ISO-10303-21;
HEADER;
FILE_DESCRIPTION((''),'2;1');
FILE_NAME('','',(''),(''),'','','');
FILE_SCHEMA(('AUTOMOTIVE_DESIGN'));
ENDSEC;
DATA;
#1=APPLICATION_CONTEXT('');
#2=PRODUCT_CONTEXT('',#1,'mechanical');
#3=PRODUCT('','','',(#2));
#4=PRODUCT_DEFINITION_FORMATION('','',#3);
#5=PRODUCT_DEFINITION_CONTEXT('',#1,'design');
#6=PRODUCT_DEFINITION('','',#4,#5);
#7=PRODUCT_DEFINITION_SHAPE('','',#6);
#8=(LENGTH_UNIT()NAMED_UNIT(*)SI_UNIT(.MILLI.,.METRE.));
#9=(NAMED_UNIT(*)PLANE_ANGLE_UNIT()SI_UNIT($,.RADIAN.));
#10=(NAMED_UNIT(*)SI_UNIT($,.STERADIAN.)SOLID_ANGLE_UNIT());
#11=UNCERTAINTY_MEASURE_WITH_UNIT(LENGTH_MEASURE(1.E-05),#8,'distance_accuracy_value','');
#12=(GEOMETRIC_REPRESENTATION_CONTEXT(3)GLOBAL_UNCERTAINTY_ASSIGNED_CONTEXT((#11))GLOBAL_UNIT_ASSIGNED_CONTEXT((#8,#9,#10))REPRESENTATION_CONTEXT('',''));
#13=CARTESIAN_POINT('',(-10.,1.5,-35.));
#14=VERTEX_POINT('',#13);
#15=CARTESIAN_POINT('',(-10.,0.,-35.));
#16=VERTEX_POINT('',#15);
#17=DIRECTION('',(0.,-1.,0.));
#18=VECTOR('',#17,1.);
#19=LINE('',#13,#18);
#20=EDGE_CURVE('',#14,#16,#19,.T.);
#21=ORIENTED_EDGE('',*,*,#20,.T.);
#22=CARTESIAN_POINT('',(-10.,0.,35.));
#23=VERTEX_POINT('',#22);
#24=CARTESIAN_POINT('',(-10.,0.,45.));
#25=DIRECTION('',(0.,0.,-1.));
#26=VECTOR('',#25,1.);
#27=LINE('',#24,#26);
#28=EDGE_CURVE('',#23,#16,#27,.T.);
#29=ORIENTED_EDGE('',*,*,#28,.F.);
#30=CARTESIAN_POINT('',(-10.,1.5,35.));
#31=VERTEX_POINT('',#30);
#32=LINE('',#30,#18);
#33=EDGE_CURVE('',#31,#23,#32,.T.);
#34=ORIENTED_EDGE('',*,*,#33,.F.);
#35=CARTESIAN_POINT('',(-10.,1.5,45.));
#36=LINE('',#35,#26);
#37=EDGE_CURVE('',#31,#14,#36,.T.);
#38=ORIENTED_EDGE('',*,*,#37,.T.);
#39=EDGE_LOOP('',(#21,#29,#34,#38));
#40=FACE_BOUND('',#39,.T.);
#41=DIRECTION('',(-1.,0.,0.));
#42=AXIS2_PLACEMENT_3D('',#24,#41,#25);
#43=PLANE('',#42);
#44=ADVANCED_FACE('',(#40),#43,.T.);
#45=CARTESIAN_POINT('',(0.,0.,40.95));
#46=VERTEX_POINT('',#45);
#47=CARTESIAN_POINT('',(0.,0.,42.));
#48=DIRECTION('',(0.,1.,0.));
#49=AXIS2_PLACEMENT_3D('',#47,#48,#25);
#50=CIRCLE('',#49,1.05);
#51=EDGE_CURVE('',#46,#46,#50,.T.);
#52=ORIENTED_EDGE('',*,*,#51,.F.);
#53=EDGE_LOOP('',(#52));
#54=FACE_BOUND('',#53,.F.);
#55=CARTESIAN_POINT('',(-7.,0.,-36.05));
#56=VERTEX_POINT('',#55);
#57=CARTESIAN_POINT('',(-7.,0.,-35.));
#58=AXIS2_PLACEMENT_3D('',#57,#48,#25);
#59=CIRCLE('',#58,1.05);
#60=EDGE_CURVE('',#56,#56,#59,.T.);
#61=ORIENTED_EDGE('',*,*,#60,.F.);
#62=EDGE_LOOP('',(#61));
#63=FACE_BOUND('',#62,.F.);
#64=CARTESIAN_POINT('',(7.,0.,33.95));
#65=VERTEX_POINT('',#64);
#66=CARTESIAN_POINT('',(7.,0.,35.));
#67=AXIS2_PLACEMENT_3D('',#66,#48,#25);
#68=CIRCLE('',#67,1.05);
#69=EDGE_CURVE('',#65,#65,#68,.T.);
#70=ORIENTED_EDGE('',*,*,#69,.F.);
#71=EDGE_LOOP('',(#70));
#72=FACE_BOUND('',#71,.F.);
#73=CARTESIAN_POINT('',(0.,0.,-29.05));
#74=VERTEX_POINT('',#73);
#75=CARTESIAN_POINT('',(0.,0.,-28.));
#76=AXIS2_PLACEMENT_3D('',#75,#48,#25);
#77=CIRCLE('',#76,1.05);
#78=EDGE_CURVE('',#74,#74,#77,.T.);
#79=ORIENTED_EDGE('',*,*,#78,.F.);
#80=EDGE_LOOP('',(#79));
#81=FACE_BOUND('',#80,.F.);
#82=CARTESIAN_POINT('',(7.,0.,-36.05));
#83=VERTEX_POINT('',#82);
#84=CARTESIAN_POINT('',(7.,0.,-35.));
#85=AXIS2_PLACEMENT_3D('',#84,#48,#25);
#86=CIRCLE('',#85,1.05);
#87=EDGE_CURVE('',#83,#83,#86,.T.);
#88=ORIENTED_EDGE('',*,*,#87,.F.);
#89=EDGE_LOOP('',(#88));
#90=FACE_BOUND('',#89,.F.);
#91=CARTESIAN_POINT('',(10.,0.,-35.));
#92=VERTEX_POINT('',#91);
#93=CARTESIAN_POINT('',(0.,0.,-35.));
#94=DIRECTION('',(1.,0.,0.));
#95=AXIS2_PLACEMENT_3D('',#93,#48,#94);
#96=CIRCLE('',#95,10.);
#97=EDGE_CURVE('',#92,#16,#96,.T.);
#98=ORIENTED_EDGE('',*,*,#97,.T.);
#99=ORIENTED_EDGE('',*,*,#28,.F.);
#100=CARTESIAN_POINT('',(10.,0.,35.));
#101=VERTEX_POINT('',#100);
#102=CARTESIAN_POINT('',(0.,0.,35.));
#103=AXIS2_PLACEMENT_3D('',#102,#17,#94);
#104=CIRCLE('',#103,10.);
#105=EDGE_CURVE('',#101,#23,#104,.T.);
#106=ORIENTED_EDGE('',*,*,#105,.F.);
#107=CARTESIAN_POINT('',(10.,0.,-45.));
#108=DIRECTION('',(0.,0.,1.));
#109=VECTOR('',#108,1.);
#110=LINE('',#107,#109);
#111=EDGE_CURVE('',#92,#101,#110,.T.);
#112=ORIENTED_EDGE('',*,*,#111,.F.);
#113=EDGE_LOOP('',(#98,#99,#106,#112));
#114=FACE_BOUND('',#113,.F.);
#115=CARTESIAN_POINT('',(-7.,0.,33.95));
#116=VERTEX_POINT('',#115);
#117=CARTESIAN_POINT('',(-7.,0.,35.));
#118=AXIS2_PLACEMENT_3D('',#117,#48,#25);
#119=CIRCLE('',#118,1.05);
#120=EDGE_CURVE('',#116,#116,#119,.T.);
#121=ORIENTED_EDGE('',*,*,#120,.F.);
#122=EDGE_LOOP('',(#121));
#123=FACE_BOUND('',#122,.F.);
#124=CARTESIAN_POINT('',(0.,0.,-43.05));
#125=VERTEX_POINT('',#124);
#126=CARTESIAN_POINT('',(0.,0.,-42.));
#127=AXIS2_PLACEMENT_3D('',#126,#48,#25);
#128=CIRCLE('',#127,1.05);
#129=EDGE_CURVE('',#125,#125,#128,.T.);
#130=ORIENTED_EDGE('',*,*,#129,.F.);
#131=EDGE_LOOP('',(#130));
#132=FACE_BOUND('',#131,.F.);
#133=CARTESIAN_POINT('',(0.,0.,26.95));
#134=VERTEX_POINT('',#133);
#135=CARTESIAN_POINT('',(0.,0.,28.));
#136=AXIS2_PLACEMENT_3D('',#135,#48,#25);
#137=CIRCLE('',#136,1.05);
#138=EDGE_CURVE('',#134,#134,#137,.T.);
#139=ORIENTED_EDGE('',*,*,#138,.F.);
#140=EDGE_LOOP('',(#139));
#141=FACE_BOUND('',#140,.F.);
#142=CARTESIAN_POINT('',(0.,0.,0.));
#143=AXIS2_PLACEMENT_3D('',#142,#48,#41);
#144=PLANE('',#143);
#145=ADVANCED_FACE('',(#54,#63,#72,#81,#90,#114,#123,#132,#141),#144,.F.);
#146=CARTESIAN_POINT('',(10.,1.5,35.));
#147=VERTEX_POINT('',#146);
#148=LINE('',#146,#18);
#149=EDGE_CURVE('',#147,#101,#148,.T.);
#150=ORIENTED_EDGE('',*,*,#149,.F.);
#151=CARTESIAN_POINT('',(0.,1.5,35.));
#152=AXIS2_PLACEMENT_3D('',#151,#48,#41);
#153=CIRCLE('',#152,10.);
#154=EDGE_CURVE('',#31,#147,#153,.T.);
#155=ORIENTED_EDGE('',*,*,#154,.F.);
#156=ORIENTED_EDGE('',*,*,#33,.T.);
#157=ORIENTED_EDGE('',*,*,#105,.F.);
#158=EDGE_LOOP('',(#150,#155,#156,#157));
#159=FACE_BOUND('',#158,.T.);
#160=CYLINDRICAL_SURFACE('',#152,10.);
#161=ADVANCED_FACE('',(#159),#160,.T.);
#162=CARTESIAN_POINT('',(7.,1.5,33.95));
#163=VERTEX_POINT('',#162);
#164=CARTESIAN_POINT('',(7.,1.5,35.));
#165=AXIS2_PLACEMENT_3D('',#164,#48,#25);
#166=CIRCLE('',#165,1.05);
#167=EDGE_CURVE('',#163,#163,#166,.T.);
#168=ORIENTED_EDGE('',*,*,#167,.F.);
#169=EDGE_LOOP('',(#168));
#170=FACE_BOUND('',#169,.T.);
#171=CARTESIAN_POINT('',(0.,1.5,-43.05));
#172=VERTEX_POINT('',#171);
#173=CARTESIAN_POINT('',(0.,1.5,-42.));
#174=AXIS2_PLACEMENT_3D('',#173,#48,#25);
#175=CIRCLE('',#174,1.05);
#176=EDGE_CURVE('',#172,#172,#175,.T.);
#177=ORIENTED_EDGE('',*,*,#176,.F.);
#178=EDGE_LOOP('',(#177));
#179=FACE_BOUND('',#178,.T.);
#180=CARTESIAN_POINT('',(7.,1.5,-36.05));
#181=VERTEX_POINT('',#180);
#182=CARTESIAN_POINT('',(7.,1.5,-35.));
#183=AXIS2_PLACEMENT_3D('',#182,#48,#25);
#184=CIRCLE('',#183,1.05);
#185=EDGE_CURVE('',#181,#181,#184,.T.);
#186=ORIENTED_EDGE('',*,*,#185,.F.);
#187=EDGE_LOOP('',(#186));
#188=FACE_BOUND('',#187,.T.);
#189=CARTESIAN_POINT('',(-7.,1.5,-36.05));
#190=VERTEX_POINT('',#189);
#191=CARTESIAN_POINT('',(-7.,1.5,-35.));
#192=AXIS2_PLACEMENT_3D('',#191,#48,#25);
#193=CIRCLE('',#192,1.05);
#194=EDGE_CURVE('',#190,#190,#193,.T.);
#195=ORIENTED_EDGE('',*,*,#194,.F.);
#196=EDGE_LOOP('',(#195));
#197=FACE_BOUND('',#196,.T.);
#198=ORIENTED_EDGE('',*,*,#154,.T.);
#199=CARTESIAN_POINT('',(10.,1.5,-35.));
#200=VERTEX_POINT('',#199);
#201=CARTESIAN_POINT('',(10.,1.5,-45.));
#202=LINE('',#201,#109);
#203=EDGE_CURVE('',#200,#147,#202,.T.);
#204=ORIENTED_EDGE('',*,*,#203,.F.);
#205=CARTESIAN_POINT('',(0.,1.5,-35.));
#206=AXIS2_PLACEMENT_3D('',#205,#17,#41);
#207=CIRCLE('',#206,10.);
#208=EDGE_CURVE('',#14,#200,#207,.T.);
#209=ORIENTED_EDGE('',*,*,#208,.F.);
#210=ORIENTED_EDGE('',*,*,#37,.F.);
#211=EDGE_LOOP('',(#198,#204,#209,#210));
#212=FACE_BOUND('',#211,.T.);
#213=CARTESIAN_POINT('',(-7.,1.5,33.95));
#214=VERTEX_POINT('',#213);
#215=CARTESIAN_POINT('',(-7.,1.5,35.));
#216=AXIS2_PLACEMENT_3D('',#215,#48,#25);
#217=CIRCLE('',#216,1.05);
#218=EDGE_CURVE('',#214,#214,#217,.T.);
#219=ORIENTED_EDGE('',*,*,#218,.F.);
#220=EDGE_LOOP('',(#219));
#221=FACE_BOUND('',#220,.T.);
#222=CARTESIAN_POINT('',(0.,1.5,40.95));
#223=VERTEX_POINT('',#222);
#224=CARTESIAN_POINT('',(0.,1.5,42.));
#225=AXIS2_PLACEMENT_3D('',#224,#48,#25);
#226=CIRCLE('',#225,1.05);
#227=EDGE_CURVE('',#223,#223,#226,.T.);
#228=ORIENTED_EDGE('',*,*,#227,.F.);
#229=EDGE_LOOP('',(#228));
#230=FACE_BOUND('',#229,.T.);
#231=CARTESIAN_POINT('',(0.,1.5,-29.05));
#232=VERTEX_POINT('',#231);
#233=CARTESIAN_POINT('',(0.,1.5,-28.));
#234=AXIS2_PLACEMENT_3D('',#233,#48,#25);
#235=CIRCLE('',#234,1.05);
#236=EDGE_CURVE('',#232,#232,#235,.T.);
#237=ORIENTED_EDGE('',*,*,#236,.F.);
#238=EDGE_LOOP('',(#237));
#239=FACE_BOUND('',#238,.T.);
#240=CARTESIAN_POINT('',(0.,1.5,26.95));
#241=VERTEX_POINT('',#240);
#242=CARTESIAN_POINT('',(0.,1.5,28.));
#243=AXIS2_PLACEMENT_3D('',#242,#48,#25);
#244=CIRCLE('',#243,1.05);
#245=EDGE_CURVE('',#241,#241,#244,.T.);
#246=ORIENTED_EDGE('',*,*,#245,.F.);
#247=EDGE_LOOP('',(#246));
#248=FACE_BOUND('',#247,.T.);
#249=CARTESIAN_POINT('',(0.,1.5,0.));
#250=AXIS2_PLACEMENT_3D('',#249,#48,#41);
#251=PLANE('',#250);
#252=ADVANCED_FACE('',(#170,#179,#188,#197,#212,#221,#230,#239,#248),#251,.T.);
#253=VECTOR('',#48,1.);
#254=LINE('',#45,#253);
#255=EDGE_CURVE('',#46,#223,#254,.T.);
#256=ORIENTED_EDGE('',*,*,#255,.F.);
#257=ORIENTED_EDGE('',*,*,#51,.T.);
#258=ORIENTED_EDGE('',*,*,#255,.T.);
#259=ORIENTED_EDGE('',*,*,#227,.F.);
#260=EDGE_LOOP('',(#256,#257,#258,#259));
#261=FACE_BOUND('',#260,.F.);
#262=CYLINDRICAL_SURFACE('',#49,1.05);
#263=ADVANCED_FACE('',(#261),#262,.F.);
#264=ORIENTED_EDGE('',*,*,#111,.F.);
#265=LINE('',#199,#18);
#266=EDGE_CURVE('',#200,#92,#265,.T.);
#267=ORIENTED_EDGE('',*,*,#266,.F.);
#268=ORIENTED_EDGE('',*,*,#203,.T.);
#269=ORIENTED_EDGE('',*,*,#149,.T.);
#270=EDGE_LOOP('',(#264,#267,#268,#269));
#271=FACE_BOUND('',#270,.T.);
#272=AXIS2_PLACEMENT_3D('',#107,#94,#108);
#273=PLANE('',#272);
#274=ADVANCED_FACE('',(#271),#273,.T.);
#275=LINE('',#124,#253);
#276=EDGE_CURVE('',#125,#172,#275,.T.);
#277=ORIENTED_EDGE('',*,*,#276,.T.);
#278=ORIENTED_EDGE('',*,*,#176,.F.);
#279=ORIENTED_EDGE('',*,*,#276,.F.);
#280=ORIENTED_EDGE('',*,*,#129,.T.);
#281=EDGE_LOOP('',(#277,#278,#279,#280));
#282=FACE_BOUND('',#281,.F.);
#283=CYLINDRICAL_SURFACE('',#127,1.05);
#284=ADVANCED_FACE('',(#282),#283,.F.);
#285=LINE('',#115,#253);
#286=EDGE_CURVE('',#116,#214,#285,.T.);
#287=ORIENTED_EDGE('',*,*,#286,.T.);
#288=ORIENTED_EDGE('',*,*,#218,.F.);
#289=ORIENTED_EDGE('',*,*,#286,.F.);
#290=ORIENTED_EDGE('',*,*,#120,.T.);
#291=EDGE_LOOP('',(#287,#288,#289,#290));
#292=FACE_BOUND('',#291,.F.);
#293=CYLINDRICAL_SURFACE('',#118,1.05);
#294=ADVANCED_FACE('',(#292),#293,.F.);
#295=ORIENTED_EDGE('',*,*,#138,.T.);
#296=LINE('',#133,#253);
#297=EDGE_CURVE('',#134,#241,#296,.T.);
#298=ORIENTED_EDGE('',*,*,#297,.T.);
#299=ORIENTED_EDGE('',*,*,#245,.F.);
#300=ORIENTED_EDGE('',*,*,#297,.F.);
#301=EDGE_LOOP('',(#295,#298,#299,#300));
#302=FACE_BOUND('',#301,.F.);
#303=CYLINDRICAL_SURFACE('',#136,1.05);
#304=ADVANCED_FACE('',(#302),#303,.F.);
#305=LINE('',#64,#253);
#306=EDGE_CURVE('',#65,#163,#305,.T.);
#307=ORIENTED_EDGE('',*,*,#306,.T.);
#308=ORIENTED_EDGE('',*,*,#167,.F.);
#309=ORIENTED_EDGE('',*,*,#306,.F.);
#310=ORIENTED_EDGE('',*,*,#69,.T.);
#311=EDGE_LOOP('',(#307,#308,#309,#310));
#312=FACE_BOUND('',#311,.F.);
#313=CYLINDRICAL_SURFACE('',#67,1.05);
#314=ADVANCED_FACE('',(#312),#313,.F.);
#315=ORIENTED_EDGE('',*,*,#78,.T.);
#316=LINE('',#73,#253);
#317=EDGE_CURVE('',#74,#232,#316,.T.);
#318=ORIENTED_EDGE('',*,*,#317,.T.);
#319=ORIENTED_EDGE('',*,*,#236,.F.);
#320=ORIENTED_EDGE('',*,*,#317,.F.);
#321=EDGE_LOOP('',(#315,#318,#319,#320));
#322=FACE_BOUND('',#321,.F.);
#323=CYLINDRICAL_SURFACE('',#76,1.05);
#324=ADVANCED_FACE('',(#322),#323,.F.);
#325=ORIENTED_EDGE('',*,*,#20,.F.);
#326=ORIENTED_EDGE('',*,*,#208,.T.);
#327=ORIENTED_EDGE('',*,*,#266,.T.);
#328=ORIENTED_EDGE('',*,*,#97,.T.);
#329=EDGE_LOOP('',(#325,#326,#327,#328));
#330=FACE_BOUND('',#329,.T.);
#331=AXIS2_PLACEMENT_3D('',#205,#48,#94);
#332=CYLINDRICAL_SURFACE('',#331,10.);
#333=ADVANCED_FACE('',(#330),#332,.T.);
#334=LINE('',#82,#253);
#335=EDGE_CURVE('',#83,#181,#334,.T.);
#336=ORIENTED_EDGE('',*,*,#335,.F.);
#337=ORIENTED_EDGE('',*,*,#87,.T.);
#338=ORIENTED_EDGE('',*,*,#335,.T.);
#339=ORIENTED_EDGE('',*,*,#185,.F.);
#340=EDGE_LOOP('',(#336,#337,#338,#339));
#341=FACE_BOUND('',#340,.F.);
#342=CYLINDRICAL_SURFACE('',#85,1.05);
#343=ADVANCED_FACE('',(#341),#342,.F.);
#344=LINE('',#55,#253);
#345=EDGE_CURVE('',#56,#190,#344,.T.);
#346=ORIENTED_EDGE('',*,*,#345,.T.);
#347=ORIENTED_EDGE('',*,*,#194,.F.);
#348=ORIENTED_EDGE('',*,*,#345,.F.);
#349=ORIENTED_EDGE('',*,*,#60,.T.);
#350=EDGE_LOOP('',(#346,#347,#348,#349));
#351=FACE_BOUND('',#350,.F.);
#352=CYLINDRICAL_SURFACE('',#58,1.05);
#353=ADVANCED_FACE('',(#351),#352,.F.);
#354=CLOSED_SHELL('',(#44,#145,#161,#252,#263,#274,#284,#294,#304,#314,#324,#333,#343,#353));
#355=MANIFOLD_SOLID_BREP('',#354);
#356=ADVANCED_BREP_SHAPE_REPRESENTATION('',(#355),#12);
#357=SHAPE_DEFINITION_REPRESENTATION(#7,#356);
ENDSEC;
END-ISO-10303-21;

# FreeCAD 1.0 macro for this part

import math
import FreeCAD as App
import Part
import Sketcher
from FreeCAD import Vector

doc = App.newDocument("Part")
body = doc.addObject("PartDesign::Body", "Body")

# Sketch on XZ plane
sketch1 = body.newObject("Sketcher::SketchObject", "Sketch")
sketch1.AttachmentSupport = (doc.getObject("XZ_Plane"), [""])
sketch1.MapMode = "FlatFace"
sketch1.addGeometry([
    Part.LineSegment(Vector(10, -45, 0), Vector(-10, -45, 0)),
    Part.LineSegment(Vector(-10, -45, 0), Vector(-10, 45, 0)),
    Part.LineSegment(Vector(-10, 45, 0), Vector(10, 45, 0)),
    Part.LineSegment(Vector(10, 45, 0), Vector(10, -45, 0)),
], False)
sketch1.addConstraint([
    Sketcher.Constraint("Coincident", 0, 2, 1, 1),
    Sketcher.Constraint("Coincident", 1, 2, 2, 1),
    Sketcher.Constraint("Coincident", 2, 2, 3, 1),
    Sketcher.Constraint("Coincident", 3, 2, 0, 1),
    Sketcher.Constraint("Horizontal", 0),
    Sketcher.Constraint("Vertical", 1),
    Sketcher.Constraint("Horizontal", 2),
    Sketcher.Constraint("Vertical", 3),
    Sketcher.Constraint("Symmetric", 0, 2, 2, 2, -1, 1),
    Sketcher.Constraint("DistanceX", 0, 2, 0, 1, 20.0),
    Sketcher.Constraint("DistanceY", 1, 1, 1, 2, 90.0),
])
pad1 = body.newObject("PartDesign::Pad", "Pad")
pad1.Profile = sketch1
pad1.Length = 1.5
pad1.Reversed = True

# Sketch on XZ plane
sketch2 = body.newObject("Sketcher::SketchObject", "Sketch001")
sketch2.AttachmentSupport = (doc.getObject("XZ_Plane"), [""])
sketch2.MapMode = "FlatFace"
sketch2.addGeometry([
    Part.Circle(Vector(0, 42, 0), Vector(0, 0, 1), 1.1),  # 0
    Part.Circle(Vector(-7, 35, 0), Vector(0, 0, 1), 1.1),  # 1
    Part.Circle(Vector(0, 28, 0), Vector(0, 0, 1), 1.1),  # 2
    Part.Circle(Vector(7, 35, 0), Vector(0, 0, 1), 1.1),  # 3
    Part.Circle(Vector(0, -28, 0), Vector(0, 0, 1), 1.1),  # 4
    Part.Circle(Vector(-7, -35, 0), Vector(0, 0, 1), 1.1),  # 5
    Part.Circle(Vector(0, -42, 0), Vector(0, 0, 1), 1.1),  # 6
    Part.Circle(Vector(7, -35, 0), Vector(0, 0, 1), 1.1),  # 7
], False)
sketch2.addConstraint([
    Sketcher.Constraint("Equal", 0, 1),
    Sketcher.Constraint("Equal", 1, 2),
    Sketcher.Constraint("Equal", 2, 3),
    Sketcher.Constraint("Equal", 3, 4),
    Sketcher.Constraint("Equal", 4, 5),
    Sketcher.Constraint("Equal", 5, 6),
    Sketcher.Constraint("Equal", 6, 7),
    Sketcher.Constraint("Symmetric", 2, 3, 4, 3, -1, 1),
    Sketcher.Constraint("Symmetric", 3, 3, 5, 3, -1, 1),
    Sketcher.Constraint("Symmetric", 0, 3, 6, 3, -1, 1),
    Sketcher.Constraint("Symmetric", 1, 3, 7, 3, -1, 1),
    Sketcher.Constraint("Symmetric", 1, 3, 3, 3, -2),
    Sketcher.Constraint("PointOnObject", 0, 3, -2),
    Sketcher.Constraint("PointOnObject", 2, 3, -2),
    Sketcher.Constraint("Diameter", 0, 2.1),
    Sketcher.Constraint("DistanceY", -1, 1, 0, 3, 42.0),
    Sketcher.Constraint("DistanceX", 1, 3, -1, 1, 7.0),
    Sketcher.Constraint("DistanceY", -1, 1, 1, 3, 35.0),
    Sketcher.Constraint("DistanceY", -1, 1, 2, 3, 28.0),
])
doc.recompute()
hole = body.newObject("PartDesign::Hole", "Hole")
hole.Profile = sketch2
hole.ThreadType = "None"
hole.Diameter = 2.1
hole.DepthType = "Dimension"
hole.Depth = 1.5
hole.DrillPoint = "Flat"

# Sketch on XZ plane
sketch3 = body.newObject("Sketcher::SketchObject", "Sketch002")
sketch3.AttachmentSupport = (doc.getObject("XZ_Plane"), [""])
sketch3.MapMode = "FlatFace"
sketch3.AttachmentOffset = App.Placement(Vector(0, 0, -1.5), App.Rotation())
sketch3.addGeometry([
    Part.ArcOfCircle(Part.Circle(Vector(0, -35, 0), Vector(0, 0, 1), 10), math.radians(-90), math.radians(0)),  # 0
    Part.LineSegment(Vector(10, -35, 0), Vector(10, -45, 0)),  # 1
    Part.LineSegment(Vector(10, -45, 0), Vector(0, -45, 0)),  # 2
    Part.ArcOfCircle(Part.Circle(Vector(0, -35, 0), Vector(0, 0, 1), 10), math.radians(180), math.radians(270)),  # 3
    Part.LineSegment(Vector(0, -45, 0), Vector(-10, -45, 0)),  # 4
    Part.LineSegment(Vector(-10, -45, 0), Vector(-10, -35, 0)),  # 5
    Part.LineSegment(Vector(10, 45, 0), Vector(10, 35, 0)),  # 6
    Part.ArcOfCircle(Part.Circle(Vector(0, 35, 0), Vector(0, 0, 1), 10), math.radians(0), math.radians(90)),  # 7
    Part.LineSegment(Vector(0, 45, 0), Vector(10, 45, 0)),  # 8
    Part.LineSegment(Vector(-10, 45, 0), Vector(0, 45, 0)),  # 9
    Part.ArcOfCircle(Part.Circle(Vector(0, 35, 0), Vector(0, 0, 1), 10), math.radians(90), math.radians(180)),  # 10
    Part.LineSegment(Vector(-10, 35, 0), Vector(-10, 45, 0)),  # 11
], False)
sketch3.addConstraint([
    Sketcher.Constraint("Tangent", 0, 2, 1, 1),
    Sketcher.Constraint("Coincident", 1, 2, 2, 1),
    Sketcher.Constraint("Tangent", 2, 2, 0, 1),
    Sketcher.Constraint("Tangent", 3, 2, 4, 1),
    Sketcher.Constraint("Coincident", 4, 2, 5, 1),
    Sketcher.Constraint("Tangent", 5, 2, 3, 1),
    Sketcher.Constraint("Tangent", 6, 2, 7, 1),
    Sketcher.Constraint("Tangent", 7, 2, 8, 1),
    Sketcher.Constraint("Coincident", 8, 2, 6, 1),
    Sketcher.Constraint("Tangent", 9, 2, 10, 1),
    Sketcher.Constraint("Tangent", 10, 2, 11, 1),
    Sketcher.Constraint("Coincident", 11, 2, 9, 1),
    Sketcher.Constraint("Vertical", 1),
    Sketcher.Constraint("Horizontal", 2),
    Sketcher.Constraint("Horizontal", 4),
    Sketcher.Constraint("Vertical", 5),
    Sketcher.Constraint("Vertical", 6),
    Sketcher.Constraint("Horizontal", 8),
    Sketcher.Constraint("Horizontal", 9),
    Sketcher.Constraint("Vertical", 11),
    Sketcher.Constraint("Coincident", 3, 3, 0, 3),
    Sketcher.Constraint("Coincident", 10, 3, 7, 3),
    Sketcher.Constraint("Equal", 0, 3),
    Sketcher.Constraint("Equal", 3, 7),
    Sketcher.Constraint("Equal", 7, 10),
    Sketcher.Constraint("Symmetric", 0, 3, 7, 3, -1, 1),
    Sketcher.Constraint("PointOnObject", 0, 3, -2),
    Sketcher.Constraint("Radius", 0, 10.0),
    Sketcher.Constraint("DistanceY", 0, 3, -1, 1, 35.0),
])
pocket1 = body.newObject("PartDesign::Pocket", "Pocket")
pocket1.Profile = sketch3
pocket1.Length = 10
pocket1.Reversed = True

doc.recompute()
